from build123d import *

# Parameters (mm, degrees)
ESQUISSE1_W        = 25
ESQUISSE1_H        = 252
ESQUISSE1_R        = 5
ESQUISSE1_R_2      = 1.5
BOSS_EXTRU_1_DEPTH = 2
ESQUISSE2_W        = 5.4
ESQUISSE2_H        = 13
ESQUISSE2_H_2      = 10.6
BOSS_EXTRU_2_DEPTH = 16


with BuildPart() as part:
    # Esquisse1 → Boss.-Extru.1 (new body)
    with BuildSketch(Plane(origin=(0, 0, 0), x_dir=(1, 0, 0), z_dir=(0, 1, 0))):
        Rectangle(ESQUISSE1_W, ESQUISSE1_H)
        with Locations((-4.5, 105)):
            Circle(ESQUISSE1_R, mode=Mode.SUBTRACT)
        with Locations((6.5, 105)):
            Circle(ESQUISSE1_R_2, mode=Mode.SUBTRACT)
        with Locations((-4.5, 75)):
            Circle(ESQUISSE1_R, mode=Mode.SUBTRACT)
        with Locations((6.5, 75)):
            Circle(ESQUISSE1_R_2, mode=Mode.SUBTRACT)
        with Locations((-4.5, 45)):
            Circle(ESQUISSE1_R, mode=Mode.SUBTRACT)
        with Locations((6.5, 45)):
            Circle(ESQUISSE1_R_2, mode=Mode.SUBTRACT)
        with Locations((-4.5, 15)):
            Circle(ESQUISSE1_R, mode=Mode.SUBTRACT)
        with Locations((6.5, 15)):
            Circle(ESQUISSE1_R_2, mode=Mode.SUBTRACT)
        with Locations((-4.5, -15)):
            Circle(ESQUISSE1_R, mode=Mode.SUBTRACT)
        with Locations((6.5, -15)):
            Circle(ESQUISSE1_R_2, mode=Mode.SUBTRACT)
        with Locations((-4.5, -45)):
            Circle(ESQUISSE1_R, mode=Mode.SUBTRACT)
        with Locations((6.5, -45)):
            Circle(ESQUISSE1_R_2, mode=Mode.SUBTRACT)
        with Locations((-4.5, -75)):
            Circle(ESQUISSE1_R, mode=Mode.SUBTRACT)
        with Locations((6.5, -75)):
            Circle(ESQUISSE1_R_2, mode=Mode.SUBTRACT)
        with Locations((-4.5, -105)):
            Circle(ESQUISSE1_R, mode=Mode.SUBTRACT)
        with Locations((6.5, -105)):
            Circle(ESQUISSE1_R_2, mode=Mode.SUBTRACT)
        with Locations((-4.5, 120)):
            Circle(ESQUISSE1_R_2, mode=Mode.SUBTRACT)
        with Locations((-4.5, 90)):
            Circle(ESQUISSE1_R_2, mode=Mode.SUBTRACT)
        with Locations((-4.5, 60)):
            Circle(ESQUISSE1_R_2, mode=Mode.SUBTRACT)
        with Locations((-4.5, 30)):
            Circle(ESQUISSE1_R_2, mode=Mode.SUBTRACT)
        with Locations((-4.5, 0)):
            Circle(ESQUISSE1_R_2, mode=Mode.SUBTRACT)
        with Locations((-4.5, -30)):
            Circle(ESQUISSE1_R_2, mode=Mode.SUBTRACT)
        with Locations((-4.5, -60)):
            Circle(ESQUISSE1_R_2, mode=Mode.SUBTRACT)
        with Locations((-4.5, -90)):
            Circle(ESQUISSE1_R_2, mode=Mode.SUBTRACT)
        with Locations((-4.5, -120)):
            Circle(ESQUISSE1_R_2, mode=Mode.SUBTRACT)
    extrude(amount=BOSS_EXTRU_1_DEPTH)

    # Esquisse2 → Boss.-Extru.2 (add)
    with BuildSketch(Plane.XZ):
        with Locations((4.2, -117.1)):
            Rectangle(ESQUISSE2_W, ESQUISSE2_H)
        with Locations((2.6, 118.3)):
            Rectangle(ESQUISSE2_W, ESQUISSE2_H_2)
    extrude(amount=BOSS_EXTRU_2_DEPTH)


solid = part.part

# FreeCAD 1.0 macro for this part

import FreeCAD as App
import Part
import Sketcher
from FreeCAD import Vector


def add_polygon(sketch, points):
    """Adds a closed chain of lines whose ends are joined by coincident constraints."""
    first, n = sketch.GeometryCount, len(points)
    for a, b in zip(points, points[1:] + points[:1]):
        sketch.addGeometry(Part.LineSegment(App.Vector(*a, 0), App.Vector(*b, 0)), False)
    for i in range(n):
        sketch.addConstraint(Sketcher.Constraint("Coincident", first + i, 2, first + (i + 1) % n, 1))

doc = App.newDocument("Part")
params = doc.addObject("Spreadsheet::Sheet", "Params")
for row, (alias, value) in enumerate([
    ("sketch1_diameter", "3 mm"),
    ("sketch1_diameter2", "10 mm"),
    ("sketch1_width", "25 mm"),
    ("sketch1_height", "252 mm"),
    ("pad1_length", "2 mm"),
    ("sketch2_height", "13 mm"),
    ("sketch2_width", "5.4 mm"),
    ("sketch2_height2", "10.6 mm"),
    ("pad2_length", "16 mm"),
], start=1):
    params.set(f"A{row}", alias)
    params.set(f"B{row}", "=" + value)
    params.setAlias(f"B{row}", alias)

body = doc.addObject("PartDesign::Body", "Body")

sketch1 = body.newObject("Sketcher::SketchObject", "Sketch")
sketch1.AttachmentSupport = (doc.getObject("XZ_Plane"), [""])
sketch1.MapMode = "FlatFace"
add_polygon(sketch1, [(-12.5, -126), (-12.5, 126), (12.5, 126), (12.5, -126)])
sketch1.addGeometry(Part.Circle(Vector(-4.5, 120, 0), Vector(0, 0, 1), 1.5), False)
sketch1.addGeometry(Part.Circle(Vector(-4.5, 105, 0), Vector(0, 0, 1), 5), False)
sketch1.addGeometry(Part.Circle(Vector(-4.5, 90, 0), Vector(0, 0, 1), 1.5), False)
sketch1.addGeometry(Part.Circle(Vector(-4.5, 75, 0), Vector(0, 0, 1), 5), False)
sketch1.addGeometry(Part.Circle(Vector(-4.5, 60, 0), Vector(0, 0, 1), 1.5), False)
sketch1.addGeometry(Part.Circle(Vector(-4.5, 45, 0), Vector(0, 0, 1), 5), False)
sketch1.addGeometry(Part.Circle(Vector(-4.5, 30, 0), Vector(0, 0, 1), 1.5), False)
sketch1.addGeometry(Part.Circle(Vector(-4.5, 15, 0), Vector(0, 0, 1), 5), False)
sketch1.addGeometry(Part.Circle(Vector(6.5, 105, 0), Vector(0, 0, 1), 1.5), False)
sketch1.addGeometry(Part.Circle(Vector(6.5, 75, 0), Vector(0, 0, 1), 1.5), False)
sketch1.addGeometry(Part.Circle(Vector(6.5, 45, 0), Vector(0, 0, 1), 1.5), False)
sketch1.addGeometry(Part.Circle(Vector(6.5, 15, 0), Vector(0, 0, 1), 1.5), False)
sketch1.addGeometry(Part.Circle(Vector(-4.5, 0, 0), Vector(0, 0, 1), 1.5), False)
sketch1.addGeometry(Part.Circle(Vector(-4.5, -15, 0), Vector(0, 0, 1), 5), False)
sketch1.addGeometry(Part.Circle(Vector(-4.5, -30, 0), Vector(0, 0, 1), 1.5), False)
sketch1.addGeometry(Part.Circle(Vector(-4.5, -45, 0), Vector(0, 0, 1), 5), False)
sketch1.addGeometry(Part.Circle(Vector(-4.5, -60, 0), Vector(0, 0, 1), 1.5), False)
sketch1.addGeometry(Part.Circle(Vector(-4.5, -75, 0), Vector(0, 0, 1), 5), False)
sketch1.addGeometry(Part.Circle(Vector(-4.5, -90, 0), Vector(0, 0, 1), 1.5), False)
sketch1.addGeometry(Part.Circle(Vector(-4.5, -105, 0), Vector(0, 0, 1), 5), False)
sketch1.addGeometry(Part.Circle(Vector(-4.5, -120, 0), Vector(0, 0, 1), 1.5), False)
sketch1.addGeometry(Part.Circle(Vector(6.5, -15, 0), Vector(0, 0, 1), 1.5), False)
sketch1.addGeometry(Part.Circle(Vector(6.5, -45, 0), Vector(0, 0, 1), 1.5), False)
sketch1.addGeometry(Part.Circle(Vector(6.5, -75, 0), Vector(0, 0, 1), 1.5), False)
sketch1.addGeometry(Part.Circle(Vector(6.5, -105, 0), Vector(0, 0, 1), 1.5), False)
sketch1.addConstraint([
    Sketcher.Constraint("Vertical", 0),
    Sketcher.Constraint("Horizontal", 1),
    Sketcher.Constraint("Vertical", 2),
    Sketcher.Constraint("Horizontal", 3),
    Sketcher.Constraint("Equal", 4, 6),
    Sketcher.Constraint("Equal", 5, 7),
    Sketcher.Constraint("Equal", 6, 8),
    Sketcher.Constraint("Equal", 7, 9),
    Sketcher.Constraint("Equal", 8, 10),
    Sketcher.Constraint("Equal", 9, 11),
    Sketcher.Constraint("Equal", 10, 12),
    Sketcher.Constraint("Equal", 12, 13),
    Sketcher.Constraint("Equal", 13, 14),
    Sketcher.Constraint("Equal", 14, 15),
    Sketcher.Constraint("Equal", 15, 16),
    Sketcher.Constraint("Equal", 11, 17),
    Sketcher.Constraint("Equal", 16, 18),
    Sketcher.Constraint("Equal", 17, 19),
    Sketcher.Constraint("Equal", 18, 20),
    Sketcher.Constraint("Equal", 19, 21),
    Sketcher.Constraint("Equal", 20, 22),
    Sketcher.Constraint("Equal", 21, 23),
    Sketcher.Constraint("Equal", 22, 24),
    Sketcher.Constraint("Equal", 24, 25),
    Sketcher.Constraint("Equal", 25, 26),
    Sketcher.Constraint("Equal", 26, 27),
    Sketcher.Constraint("Equal", 27, 28),
    Sketcher.Constraint("Symmetric", 0, 2, 2, 2, -1, 1),
    Sketcher.Constraint("Symmetric", 11, 3, 17, 3, -1),
    Sketcher.Constraint("Symmetric", 10, 3, 18, 3, -1),
    Sketcher.Constraint("Symmetric", 9, 3, 19, 3, -1),
    Sketcher.Constraint("Symmetric", 8, 3, 20, 3, -1),
    Sketcher.Constraint("Symmetric", 7, 3, 21, 3, -1),
    Sketcher.Constraint("Symmetric", 6, 3, 22, 3, -1),
    Sketcher.Constraint("Symmetric", 5, 3, 23, 3, -1),
    Sketcher.Constraint("Symmetric", 4, 3, 24, 3, -1),
    Sketcher.Constraint("Symmetric", 15, 3, 25, 3, -1),
    Sketcher.Constraint("Symmetric", 14, 3, 26, 3, -1),
    Sketcher.Constraint("Symmetric", 13, 3, 27, 3, -1),
    Sketcher.Constraint("Symmetric", 12, 3, 28, 3, -1),
    Sketcher.Constraint("PointOnObject", 16, 3, -1),
    Sketcher.Constraint("Horizontal", 5, 3, 12, 3),
    Sketcher.Constraint("Horizontal", 7, 3, 13, 3),
    Sketcher.Constraint("Horizontal", 9, 3, 14, 3),
    Sketcher.Constraint("Horizontal", 11, 3, 15, 3),
    Sketcher.Constraint("Vertical", 4, 3, 5, 3),
    Sketcher.Constraint("Vertical", 5, 3, 6, 3),
    Sketcher.Constraint("Vertical", 6, 3, 7, 3),
    Sketcher.Constraint("Vertical", 7, 3, 8, 3),
    Sketcher.Constraint("Vertical", 8, 3, 9, 3),
    Sketcher.Constraint("Vertical", 9, 3, 10, 3),
    Sketcher.Constraint("Vertical", 10, 3, 11, 3),
    Sketcher.Constraint("Vertical", 12, 3, 13, 3),
    Sketcher.Constraint("Vertical", 13, 3, 14, 3),
    Sketcher.Constraint("Vertical", 14, 3, 15, 3),
    Sketcher.Constraint("Vertical", 11, 3, 16, 3),
    Sketcher.Constraint("Diameter", 4, 3.0),
    Sketcher.Constraint("Diameter", 5, 10.0),
    Sketcher.Constraint("DistanceX", 1, 1, 1, 2, 25.0),
    Sketcher.Constraint("DistanceY", 0, 1, 0, 2, 252.0),
    Sketcher.Constraint("DistanceY", -1, 1, 4, 3, 120.0),
    Sketcher.Constraint("DistanceY", -1, 1, 5, 3, 105.0),
    Sketcher.Constraint("DistanceY", -1, 1, 6, 3, 90.0),
    Sketcher.Constraint("DistanceY", -1, 1, 7, 3, 75.0),
    Sketcher.Constraint("DistanceY", -1, 1, 8, 3, 60.0),
    Sketcher.Constraint("DistanceY", -1, 1, 9, 3, 45.0),
    Sketcher.Constraint("DistanceY", -1, 1, 10, 3, 30.0),
    Sketcher.Constraint("DistanceY", -1, 1, 11, 3, 15.0),
    Sketcher.Constraint("DistanceX", 5, 3, 12, 3, 11.0),
    Sketcher.Constraint("DistanceX", 0, 2, 4, 3, 8.0),
])
sketch1.setExpression("Constraints[60]", "Params.sketch1_diameter")
sketch1.setExpression("Constraints[61]", "Params.sketch1_diameter2")
sketch1.setExpression("Constraints[62]", "Params.sketch1_width")
sketch1.setExpression("Constraints[63]", "Params.sketch1_height")
pad1 = body.newObject("PartDesign::Pad", "Pad")
pad1.Profile = sketch1
pad1.setExpression("Length", "Params.pad1_length")
pad1.Reversed = True

sketch2 = body.newObject("Sketcher::SketchObject", "Sketch001")
sketch2.AttachmentSupport = (doc.getObject("XZ_Plane"), [""])
sketch2.MapMode = "FlatFace"
add_polygon(sketch2, [(2, -111), (2, -124), (7, -124), (7, -111)])
add_polygon(sketch2, [(0, 124), (0, 113), (5, 113), (5, 124)])
sketch2.addConstraint([
    Sketcher.Constraint("Vertical", 0),
    Sketcher.Constraint("Horizontal", 1),
    Sketcher.Constraint("Vertical", 2),
    Sketcher.Constraint("Horizontal", 3),
    Sketcher.Constraint("Vertical", 4),
    Sketcher.Constraint("Horizontal", 5),
    Sketcher.Constraint("Vertical", 6),
    Sketcher.Constraint("Horizontal", 7),
    Sketcher.Constraint("Equal", 3, 5),
    Sketcher.Constraint("DistanceY", 0, 2, 0, 1, 13.0),
    Sketcher.Constraint("DistanceX", 1, 1, 1, 2, 5.4),
    Sketcher.Constraint("DistanceY", 4, 2, 4, 1, 10.6),
    Sketcher.Constraint("DistanceY", -1, 1, 4, 2, 113.0),
    Sketcher.Constraint("DistanceX", 4, 2, 2, 2, 7.0),
    Sketcher.Constraint("DistanceX", -1, 1, 0, 2, 1.5),
    Sketcher.Constraint("DistanceY", 0, 2, -1, 1, 123.6),
])
sketch2.setExpression("Constraints[17]", "Params.sketch2_height")
sketch2.setExpression("Constraints[18]", "Params.sketch2_width")
sketch2.setExpression("Constraints[19]", "Params.sketch2_height2")
pad2 = body.newObject("PartDesign::Pad", "Pad001")
pad2.Profile = sketch2
pad2.setExpression("Length", "Params.pad2_length")

doc.recompute()
